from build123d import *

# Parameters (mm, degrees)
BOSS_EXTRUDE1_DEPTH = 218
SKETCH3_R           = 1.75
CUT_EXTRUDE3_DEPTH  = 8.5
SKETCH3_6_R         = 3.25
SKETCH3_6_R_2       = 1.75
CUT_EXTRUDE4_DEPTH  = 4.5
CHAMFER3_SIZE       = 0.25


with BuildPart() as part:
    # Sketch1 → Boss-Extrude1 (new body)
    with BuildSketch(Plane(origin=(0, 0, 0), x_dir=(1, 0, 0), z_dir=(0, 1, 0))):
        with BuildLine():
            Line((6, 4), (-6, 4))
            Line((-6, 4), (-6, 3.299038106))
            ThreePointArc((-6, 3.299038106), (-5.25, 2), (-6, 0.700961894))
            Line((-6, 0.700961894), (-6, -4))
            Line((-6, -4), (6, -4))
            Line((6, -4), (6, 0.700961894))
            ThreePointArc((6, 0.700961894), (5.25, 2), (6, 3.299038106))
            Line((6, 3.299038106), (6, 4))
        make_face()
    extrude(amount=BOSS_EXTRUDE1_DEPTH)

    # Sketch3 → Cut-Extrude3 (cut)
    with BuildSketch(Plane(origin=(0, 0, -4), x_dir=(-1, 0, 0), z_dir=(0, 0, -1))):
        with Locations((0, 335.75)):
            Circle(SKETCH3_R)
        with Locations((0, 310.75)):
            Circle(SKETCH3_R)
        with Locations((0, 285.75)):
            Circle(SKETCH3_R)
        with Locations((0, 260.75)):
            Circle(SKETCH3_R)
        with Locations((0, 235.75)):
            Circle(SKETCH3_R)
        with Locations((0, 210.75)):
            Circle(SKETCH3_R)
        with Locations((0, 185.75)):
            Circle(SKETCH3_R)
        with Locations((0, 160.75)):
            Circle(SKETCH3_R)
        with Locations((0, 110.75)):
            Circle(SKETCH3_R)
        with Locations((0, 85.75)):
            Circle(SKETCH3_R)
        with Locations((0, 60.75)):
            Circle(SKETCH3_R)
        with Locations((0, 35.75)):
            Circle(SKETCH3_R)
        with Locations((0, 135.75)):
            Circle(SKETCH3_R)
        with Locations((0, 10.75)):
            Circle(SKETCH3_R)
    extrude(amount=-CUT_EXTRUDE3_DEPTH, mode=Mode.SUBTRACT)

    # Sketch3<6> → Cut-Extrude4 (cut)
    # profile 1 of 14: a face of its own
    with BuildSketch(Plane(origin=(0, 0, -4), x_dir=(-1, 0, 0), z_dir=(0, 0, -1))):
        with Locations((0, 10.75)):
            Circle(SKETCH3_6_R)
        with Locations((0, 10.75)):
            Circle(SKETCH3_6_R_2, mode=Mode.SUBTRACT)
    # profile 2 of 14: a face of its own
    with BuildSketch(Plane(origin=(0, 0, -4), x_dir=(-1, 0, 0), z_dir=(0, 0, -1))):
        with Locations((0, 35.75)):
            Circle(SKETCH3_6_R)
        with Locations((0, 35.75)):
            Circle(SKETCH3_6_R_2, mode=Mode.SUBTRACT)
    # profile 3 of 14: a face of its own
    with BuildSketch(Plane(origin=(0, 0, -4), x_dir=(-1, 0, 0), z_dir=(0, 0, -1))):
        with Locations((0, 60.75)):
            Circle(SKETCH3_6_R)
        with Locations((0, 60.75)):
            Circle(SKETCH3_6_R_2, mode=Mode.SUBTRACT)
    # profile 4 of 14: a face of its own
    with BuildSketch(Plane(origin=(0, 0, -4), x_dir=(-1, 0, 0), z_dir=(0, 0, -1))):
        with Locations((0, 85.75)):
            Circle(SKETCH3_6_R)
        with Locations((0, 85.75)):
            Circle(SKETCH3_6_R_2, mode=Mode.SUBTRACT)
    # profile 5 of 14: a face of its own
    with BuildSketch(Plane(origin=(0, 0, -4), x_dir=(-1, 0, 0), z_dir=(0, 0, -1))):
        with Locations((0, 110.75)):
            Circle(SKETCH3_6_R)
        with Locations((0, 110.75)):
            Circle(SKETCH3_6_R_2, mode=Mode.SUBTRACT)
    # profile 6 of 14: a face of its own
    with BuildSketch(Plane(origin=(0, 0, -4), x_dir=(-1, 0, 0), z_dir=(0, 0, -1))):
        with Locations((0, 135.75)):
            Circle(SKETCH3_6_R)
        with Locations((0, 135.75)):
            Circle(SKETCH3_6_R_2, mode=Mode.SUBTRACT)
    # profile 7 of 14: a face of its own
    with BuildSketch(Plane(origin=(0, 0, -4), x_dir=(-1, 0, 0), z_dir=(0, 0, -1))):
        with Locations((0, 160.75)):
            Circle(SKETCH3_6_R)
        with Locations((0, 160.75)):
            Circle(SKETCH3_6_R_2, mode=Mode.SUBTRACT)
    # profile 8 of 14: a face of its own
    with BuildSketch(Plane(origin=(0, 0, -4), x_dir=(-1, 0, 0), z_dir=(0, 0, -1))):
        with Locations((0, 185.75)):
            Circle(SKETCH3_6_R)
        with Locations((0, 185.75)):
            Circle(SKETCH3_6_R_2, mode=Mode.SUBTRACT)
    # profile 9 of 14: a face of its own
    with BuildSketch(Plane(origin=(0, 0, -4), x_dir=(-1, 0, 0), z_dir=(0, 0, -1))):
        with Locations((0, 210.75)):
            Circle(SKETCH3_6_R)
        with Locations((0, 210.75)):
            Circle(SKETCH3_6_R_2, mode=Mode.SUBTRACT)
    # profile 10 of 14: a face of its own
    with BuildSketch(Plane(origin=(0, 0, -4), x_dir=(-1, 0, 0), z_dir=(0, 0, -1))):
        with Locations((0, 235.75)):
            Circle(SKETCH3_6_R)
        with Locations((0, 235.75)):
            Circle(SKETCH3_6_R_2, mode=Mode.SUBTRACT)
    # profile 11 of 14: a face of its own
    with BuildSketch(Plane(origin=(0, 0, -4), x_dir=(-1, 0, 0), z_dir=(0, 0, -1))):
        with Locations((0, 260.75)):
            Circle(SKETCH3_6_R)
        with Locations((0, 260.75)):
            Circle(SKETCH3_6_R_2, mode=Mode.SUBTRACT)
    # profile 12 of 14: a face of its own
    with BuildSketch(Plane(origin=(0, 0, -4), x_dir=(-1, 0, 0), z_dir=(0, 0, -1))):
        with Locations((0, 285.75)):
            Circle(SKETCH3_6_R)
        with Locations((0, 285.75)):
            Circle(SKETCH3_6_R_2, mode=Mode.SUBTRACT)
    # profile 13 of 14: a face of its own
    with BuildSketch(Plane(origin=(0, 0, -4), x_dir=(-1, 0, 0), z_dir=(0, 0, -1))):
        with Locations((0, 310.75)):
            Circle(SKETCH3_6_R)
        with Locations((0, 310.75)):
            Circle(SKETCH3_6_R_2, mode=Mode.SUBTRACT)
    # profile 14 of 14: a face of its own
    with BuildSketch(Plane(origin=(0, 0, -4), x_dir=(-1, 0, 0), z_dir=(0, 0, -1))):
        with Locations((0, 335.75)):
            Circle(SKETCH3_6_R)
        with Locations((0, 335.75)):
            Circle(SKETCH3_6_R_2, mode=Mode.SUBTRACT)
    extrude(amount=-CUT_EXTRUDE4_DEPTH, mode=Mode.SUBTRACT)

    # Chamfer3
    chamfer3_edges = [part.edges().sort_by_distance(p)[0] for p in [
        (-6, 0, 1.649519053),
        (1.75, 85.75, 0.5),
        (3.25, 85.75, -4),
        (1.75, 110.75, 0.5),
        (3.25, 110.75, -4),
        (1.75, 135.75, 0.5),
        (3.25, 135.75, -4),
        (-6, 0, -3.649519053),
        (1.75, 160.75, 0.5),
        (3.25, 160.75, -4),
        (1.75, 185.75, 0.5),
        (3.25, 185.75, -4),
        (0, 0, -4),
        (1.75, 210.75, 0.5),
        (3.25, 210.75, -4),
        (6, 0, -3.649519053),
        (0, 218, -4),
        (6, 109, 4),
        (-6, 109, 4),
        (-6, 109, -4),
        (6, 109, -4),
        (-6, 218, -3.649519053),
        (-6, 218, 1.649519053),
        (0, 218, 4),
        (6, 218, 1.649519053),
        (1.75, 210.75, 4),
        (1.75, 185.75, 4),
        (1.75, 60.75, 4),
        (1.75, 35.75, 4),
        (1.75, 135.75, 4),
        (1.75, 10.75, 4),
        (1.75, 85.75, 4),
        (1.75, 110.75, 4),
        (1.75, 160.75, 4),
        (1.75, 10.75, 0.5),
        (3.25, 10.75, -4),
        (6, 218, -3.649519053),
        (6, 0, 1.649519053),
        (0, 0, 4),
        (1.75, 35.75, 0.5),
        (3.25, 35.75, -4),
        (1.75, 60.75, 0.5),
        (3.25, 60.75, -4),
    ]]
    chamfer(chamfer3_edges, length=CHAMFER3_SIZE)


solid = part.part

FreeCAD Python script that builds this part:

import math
import FreeCAD as App
import Part
import Sketcher

V = App.Vector
Q = App.Units.Quantity


def edges_at(feature, points):
    """Names of the edges that pass closest to the given points."""
    edges = feature.Shape.Edges
    near = lambda p: min(range(len(edges)), key=lambda i: edges[i].distToShape(Part.Vertex(*p))[0])
    return sorted({f"Edge{near(p) + 1}" for p in points})

doc = App.newDocument("Part")
body = doc.addObject("PartDesign::Body", "Body")

sketch1 = body.newObject("Sketcher::SketchObject", "Sketch")
sketch1.AttachmentSupport = (doc.getObject("XZ_Plane"), [""])
sketch1.MapMode = "FlatFace"
sketch1.addGeometry(Part.LineSegment(V(6, -4, 0), V(-6, -4, 0)), False)
sketch1.addGeometry(Part.LineSegment(V(-6, -4, 0), V(-6, -3.3, 0)), False)
sketch1.addGeometry(Part.ArcOfCircle(Part.Circle(V(-6.8, -2, 0), V(0, 0, 1), 1.5), math.radians(-60), math.radians(60)), False)
sketch1.addGeometry(Part.LineSegment(V(-6, -0.7, 0), V(-6, 4, 0)), False)
sketch1.addGeometry(Part.LineSegment(V(-6, 4, 0), V(6, 4, 0)), False)
sketch1.addGeometry(Part.LineSegment(V(6, 4, 0), V(6, -0.7, 0)), False)
sketch1.addGeometry(Part.ArcOfCircle(Part.Circle(V(6.8, -2, 0), V(0, 0, 1), 1.5), math.radians(120), math.radians(240)), False)
sketch1.addGeometry(Part.LineSegment(V(6, -3.3, 0), V(6, -4, 0)), False)
sketch1.addConstraint(Sketcher.Constraint("Coincident", 0, 2, 1, 1))
sketch1.addConstraint(Sketcher.Constraint("Coincident", 1, 2, 2, 1))
sketch1.addConstraint(Sketcher.Constraint("Coincident", 2, 2, 3, 1))
sketch1.addConstraint(Sketcher.Constraint("Coincident", 3, 2, 4, 1))
sketch1.addConstraint(Sketcher.Constraint("Coincident", 4, 2, 5, 1))
sketch1.addConstraint(Sketcher.Constraint("Coincident", 5, 2, 6, 1))
sketch1.addConstraint(Sketcher.Constraint("Coincident", 6, 2, 7, 1))
sketch1.addConstraint(Sketcher.Constraint("Coincident", 7, 2, 0, 1))
sketch1.addConstraint(Sketcher.Constraint("Horizontal", 0))
sketch1.addConstraint(Sketcher.Constraint("Vertical", 1))
sketch1.addConstraint(Sketcher.Constraint("Vertical", 3))
sketch1.addConstraint(Sketcher.Constraint("Horizontal", 4))
sketch1.addConstraint(Sketcher.Constraint("Vertical", 5))
sketch1.addConstraint(Sketcher.Constraint("Vertical", 7))
sketch1.addConstraint(Sketcher.Constraint("Equal", 2, 6))
sketch1.addConstraint(Sketcher.Constraint("Symmetric", 0, 2, 4, 2, -1, 1))
sketch1.addConstraint(Sketcher.Constraint("Symmetric", 2, 3, 6, 3, -2))
sketch1.addConstraint(Sketcher.Constraint("Horizontal", 2, 2, 5, 2))
sketch1.addConstraint(Sketcher.Constraint("Horizontal", 1, 2, 6, 2))
sketch1.addConstraint(Sketcher.Constraint("Radius", 2, Q("1.5 mm")))
sketch1.addConstraint(Sketcher.Constraint("DistanceX", 0, 2, 0, 1, Q("12 mm")))
sketch1.addConstraint(Sketcher.Constraint("DistanceY", 2, 3, -1, 1, Q("2 mm")))
sketch1.addConstraint(Sketcher.Constraint("DistanceY", 0, 2, -1, 1, Q("4 mm")))
sketch1.addConstraint(Sketcher.Constraint("DistanceX", 2, 3, 6, 3, Q("13.5 mm")))
pad1 = body.newObject("PartDesign::Pad", "Pad")
pad1.Profile = sketch1
pad1.Length = 218
pad1.Reversed = True

sketch2 = body.newObject("Sketcher::SketchObject", "Sketch001")
sketch2.AttachmentSupport = (doc.getObject("XY_Plane"), [""])
sketch2.MapMode = "FlatFace"
sketch2.AttachmentOffset = App.Placement(V(0, 0, -4), App.Rotation())
sketch2.addGeometry(Part.Circle(V(0, 335.8, 0), V(0, 0, 1), 1.8), False)
sketch2.addGeometry(Part.Circle(V(0, 310.8, 0), V(0, 0, 1), 1.8), False)
sketch2.addGeometry(Part.Circle(V(0, 285.8, 0), V(0, 0, 1), 1.8), False)
sketch2.addGeometry(Part.Circle(V(0, 260.8, 0), V(0, 0, 1), 1.8), False)
sketch2.addGeometry(Part.Circle(V(0, 235.8, 0), V(0, 0, 1), 1.8), False)
sketch2.addGeometry(Part.Circle(V(0, 210.8, 0), V(0, 0, 1), 1.8), False)
sketch2.addGeometry(Part.Circle(V(0, 185.8, 0), V(0, 0, 1), 1.8), False)
sketch2.addGeometry(Part.Circle(V(0, 160.8, 0), V(0, 0, 1), 1.8), False)
sketch2.addGeometry(Part.Circle(V(0, 110.8, 0), V(0, 0, 1), 1.8), False)
sketch2.addGeometry(Part.Circle(V(0, 85.8, 0), V(0, 0, 1), 1.8), False)
sketch2.addGeometry(Part.Circle(V(0, 60.8, 0), V(0, 0, 1), 1.8), False)
sketch2.addGeometry(Part.Circle(V(0, 35.8, 0), V(0, 0, 1), 1.8), False)
sketch2.addGeometry(Part.Circle(V(0, 135.8, 0), V(0, 0, 1), 1.8), False)
sketch2.addGeometry(Part.Circle(V(0, 10.8, 0), V(0, 0, 1), 1.8), False)
sketch2.addConstraint(Sketcher.Constraint("Equal", 0, 1))
sketch2.addConstraint(Sketcher.Constraint("Equal", 1, 2))
sketch2.addConstraint(Sketcher.Constraint("Equal", 2, 3))
sketch2.addConstraint(Sketcher.Constraint("Equal", 3, 4))
sketch2.addConstraint(Sketcher.Constraint("Equal", 4, 5))
sketch2.addConstraint(Sketcher.Constraint("Equal", 5, 6))
sketch2.addConstraint(Sketcher.Constraint("Equal", 6, 7))
sketch2.addConstraint(Sketcher.Constraint("Equal", 7, 8))
sketch2.addConstraint(Sketcher.Constraint("Equal", 8, 9))
sketch2.addConstraint(Sketcher.Constraint("Equal", 9, 10))
sketch2.addConstraint(Sketcher.Constraint("Equal", 10, 11))
sketch2.addConstraint(Sketcher.Constraint("Equal", 11, 12))
sketch2.addConstraint(Sketcher.Constraint("Equal", 12, 13))
sketch2.addConstraint(Sketcher.Constraint("PointOnObject", 0, 3, -2))
sketch2.addConstraint(Sketcher.Constraint("PointOnObject", 1, 3, -2))
sketch2.addConstraint(Sketcher.Constraint("PointOnObject", 2, 3, -2))
sketch2.addConstraint(Sketcher.Constraint("PointOnObject", 3, 3, -2))
sketch2.addConstraint(Sketcher.Constraint("PointOnObject", 4, 3, -2))
sketch2.addConstraint(Sketcher.Constraint("PointOnObject", 5, 3, -2))
sketch2.addConstraint(Sketcher.Constraint("PointOnObject", 6, 3, -2))
sketch2.addConstraint(Sketcher.Constraint("PointOnObject", 7, 3, -2))
sketch2.addConstraint(Sketcher.Constraint("PointOnObject", 8, 3, -2))
sketch2.addConstraint(Sketcher.Constraint("PointOnObject", 9, 3, -2))
sketch2.addConstraint(Sketcher.Constraint("PointOnObject", 10, 3, -2))
sketch2.addConstraint(Sketcher.Constraint("PointOnObject", 11, 3, -2))
sketch2.addConstraint(Sketcher.Constraint("PointOnObject", 12, 3, -2))
sketch2.addConstraint(Sketcher.Constraint("PointOnObject", 13, 3, -2))
sketch2.addConstraint(Sketcher.Constraint("Diameter", 0, Q("3.5 mm")))
sketch2.addConstraint(Sketcher.Constraint("DistanceY", 1, 3, 0, 3, Q("25 mm")))
sketch2.addConstraint(Sketcher.Constraint("DistanceY", 2, 3, 1, 3, Q("25 mm")))
sketch2.addConstraint(Sketcher.Constraint("DistanceY", 3, 3, 2, 3, Q("25 mm")))
sketch2.addConstraint(Sketcher.Constraint("DistanceY", 4, 3, 3, 3, Q("25 mm")))
sketch2.addConstraint(Sketcher.Constraint("DistanceY", 5, 3, 4, 3, Q("25 mm")))
sketch2.addConstraint(Sketcher.Constraint("DistanceY", 6, 3, 5, 3, Q("25 mm")))
sketch2.addConstraint(Sketcher.Constraint("DistanceY", 7, 3, 6, 3, Q("25 mm")))
sketch2.addConstraint(Sketcher.Constraint("DistanceY", 8, 3, 7, 3, Q("50 mm")))
sketch2.addConstraint(Sketcher.Constraint("DistanceY", 9, 3, 8, 3, Q("25 mm")))
sketch2.addConstraint(Sketcher.Constraint("DistanceY", 10, 3, 9, 3, Q("25 mm")))
sketch2.addConstraint(Sketcher.Constraint("DistanceY", 11, 3, 10, 3, Q("25 mm")))
sketch2.addConstraint(Sketcher.Constraint("DistanceY", 12, 3, 7, 3, Q("25 mm")))
sketch2.addConstraint(Sketcher.Constraint("DistanceY", 13, 3, 11, 3, Q("25 mm")))
sketch2.addConstraint(Sketcher.Constraint("DistanceY", -1, 1, 0, 3, Q("335.75 mm")))
pocket1 = body.newObject("PartDesign::Pocket", "Pocket")
pocket1.Profile = sketch2
pocket1.Length = 8.5
pocket1.Reversed = True

sketch3 = body.newObject("Sketcher::SketchObject", "Sketch002")
sketch3.AttachmentSupport = (doc.getObject("XY_Plane"), [""])
sketch3.MapMode = "FlatFace"
sketch3.AttachmentOffset = App.Placement(V(0, 0, -4), App.Rotation())
sketch3.addGeometry(Part.Circle(V(0, 10.8, 0), V(0, 0, 1), 3.2), False)
sketch3.addGeometry(Part.Circle(V(0, 10.8, 0), V(0, 0, 1), 1.8), False)
sketch3.addGeometry(Part.Circle(V(0, 35.8, 0), V(0, 0, 1), 3.2), False)
sketch3.addGeometry(Part.Circle(V(0, 35.8, 0), V(0, 0, 1), 1.8), False)
sketch3.addGeometry(Part.Circle(V(0, 60.8, 0), V(0, 0, 1), 3.2), False)
sketch3.addGeometry(Part.Circle(V(0, 60.8, 0), V(0, 0, 1), 1.8), False)
sketch3.addGeometry(Part.Circle(V(0, 85.8, 0), V(0, 0, 1), 3.2), False)
sketch3.addGeometry(Part.Circle(V(0, 85.8, 0), V(0, 0, 1), 1.8), False)
sketch3.addGeometry(Part.Circle(V(0, 110.8, 0), V(0, 0, 1), 3.2), False)
sketch3.addGeometry(Part.Circle(V(0, 110.8, 0), V(0, 0, 1), 1.8), False)
sketch3.addGeometry(Part.Circle(V(0, 135.8, 0), V(0, 0, 1), 3.2), False)
sketch3.addGeometry(Part.Circle(V(0, 135.8, 0), V(0, 0, 1), 1.8), False)
sketch3.addGeometry(Part.Circle(V(0, 160.8, 0), V(0, 0, 1), 3.2), False)
sketch3.addGeometry(Part.Circle(V(0, 160.8, 0), V(0, 0, 1), 1.8), False)
sketch3.addGeometry(Part.Circle(V(0, 185.8, 0), V(0, 0, 1), 3.2), False)
sketch3.addGeometry(Part.Circle(V(0, 185.8, 0), V(0, 0, 1), 1.8), False)
sketch3.addGeometry(Part.Circle(V(0, 210.8, 0), V(0, 0, 1), 3.2), False)
sketch3.addGeometry(Part.Circle(V(0, 210.8, 0), V(0, 0, 1), 1.8), False)
sketch3.addGeometry(Part.Circle(V(0, 235.8, 0), V(0, 0, 1), 3.2), False)
sketch3.addGeometry(Part.Circle(V(0, 235.8, 0), V(0, 0, 1), 1.8), False)
sketch3.addGeometry(Part.Circle(V(0, 260.8, 0), V(0, 0, 1), 3.2), False)
sketch3.addGeometry(Part.Circle(V(0, 260.8, 0), V(0, 0, 1), 1.8), False)
sketch3.addGeometry(Part.Circle(V(0, 285.8, 0), V(0, 0, 1), 3.2), False)
sketch3.addGeometry(Part.Circle(V(0, 285.8, 0), V(0, 0, 1), 1.8), False)
sketch3.addGeometry(Part.Circle(V(0, 310.8, 0), V(0, 0, 1), 3.2), False)
sketch3.addGeometry(Part.Circle(V(0, 310.8, 0), V(0, 0, 1), 1.8), False)
sketch3.addGeometry(Part.Circle(V(0, 335.8, 0), V(0, 0, 1), 3.2), False)
sketch3.addGeometry(Part.Circle(V(0, 335.8, 0), V(0, 0, 1), 1.8), False)
sketch3.addConstraint(Sketcher.Constraint("Coincident", 1, 3, 0, 3))
sketch3.addConstraint(Sketcher.Constraint("Coincident", 3, 3, 2, 3))
sketch3.addConstraint(Sketcher.Constraint("Coincident", 5, 3, 4, 3))
sketch3.addConstraint(Sketcher.Constraint("Coincident", 7, 3, 6, 3))
sketch3.addConstraint(Sketcher.Constraint("Coincident", 9, 3, 8, 3))
sketch3.addConstraint(Sketcher.Constraint("Coincident", 11, 3, 10, 3))
sketch3.addConstraint(Sketcher.Constraint("Coincident", 13, 3, 12, 3))
sketch3.addConstraint(Sketcher.Constraint("Coincident", 15, 3, 14, 3))
sketch3.addConstraint(Sketcher.Constraint("Coincident", 17, 3, 16, 3))
sketch3.addConstraint(Sketcher.Constraint("Coincident", 19, 3, 18, 3))
sketch3.addConstraint(Sketcher.Constraint("Coincident", 21, 3, 20, 3))
sketch3.addConstraint(Sketcher.Constraint("Coincident", 23, 3, 22, 3))
sketch3.addConstraint(Sketcher.Constraint("Coincident", 25, 3, 24, 3))
sketch3.addConstraint(Sketcher.Constraint("Coincident", 27, 3, 26, 3))
sketch3.addConstraint(Sketcher.Constraint("Equal", 0, 2))
sketch3.addConstraint(Sketcher.Constraint("Equal", 1, 3))
sketch3.addConstraint(Sketcher.Constraint("Equal", 2, 4))
sketch3.addConstraint(Sketcher.Constraint("Equal", 3, 5))
sketch3.addConstraint(Sketcher.Constraint("Equal", 4, 6))
sketch3.addConstraint(Sketcher.Constraint("Equal", 5, 7))
sketch3.addConstraint(Sketcher.Constraint("Equal", 6, 8))
sketch3.addConstraint(Sketcher.Constraint("Equal", 7, 9))
sketch3.addConstraint(Sketcher.Constraint("Equal", 8, 10))
sketch3.addConstraint(Sketcher.Constraint("Equal", 9, 11))
sketch3.addConstraint(Sketcher.Constraint("Equal", 10, 12))
sketch3.addConstraint(Sketcher.Constraint("Equal", 11, 13))
sketch3.addConstraint(Sketcher.Constraint("Equal", 12, 14))
sketch3.addConstraint(Sketcher.Constraint("Equal", 13, 15))
sketch3.addConstraint(Sketcher.Constraint("Equal", 14, 16))
sketch3.addConstraint(Sketcher.Constraint("Equal", 15, 17))
sketch3.addConstraint(Sketcher.Constraint("Equal", 16, 18))
sketch3.addConstraint(Sketcher.Constraint("Equal", 17, 19))
sketch3.addConstraint(Sketcher.Constraint("Equal", 18, 20))
sketch3.addConstraint(Sketcher.Constraint("Equal", 19, 21))
sketch3.addConstraint(Sketcher.Constraint("Equal", 20, 22))
sketch3.addConstraint(Sketcher.Constraint("Equal", 21, 23))
sketch3.addConstraint(Sketcher.Constraint("Equal", 22, 24))
sketch3.addConstraint(Sketcher.Constraint("Equal", 23, 25))
sketch3.addConstraint(Sketcher.Constraint("Equal", 24, 26))
sketch3.addConstraint(Sketcher.Constraint("Equal", 25, 27))
sketch3.addConstraint(Sketcher.Constraint("PointOnObject", 0, 3, -2))
sketch3.addConstraint(Sketcher.Constraint("PointOnObject", 2, 3, -2))
sketch3.addConstraint(Sketcher.Constraint("PointOnObject", 4, 3, -2))
sketch3.addConstraint(Sketcher.Constraint("PointOnObject", 6, 3, -2))
sketch3.addConstraint(Sketcher.Constraint("PointOnObject", 8, 3, -2))
sketch3.addConstraint(Sketcher.Constraint("PointOnObject", 10, 3, -2))
sketch3.addConstraint(Sketcher.Constraint("PointOnObject", 12, 3, -2))
sketch3.addConstraint(Sketcher.Constraint("PointOnObject", 14, 3, -2))
sketch3.addConstraint(Sketcher.Constraint("PointOnObject", 16, 3, -2))
sketch3.addConstraint(Sketcher.Constraint("PointOnObject", 18, 3, -2))
sketch3.addConstraint(Sketcher.Constraint("PointOnObject", 20, 3, -2))
sketch3.addConstraint(Sketcher.Constraint("PointOnObject", 22, 3, -2))
sketch3.addConstraint(Sketcher.Constraint("PointOnObject", 24, 3, -2))
sketch3.addConstraint(Sketcher.Constraint("PointOnObject", 26, 3, -2))
sketch3.addConstraint(Sketcher.Constraint("Diameter", 0, Q("6.5 mm")))
sketch3.addConstraint(Sketcher.Constraint("Diameter", 1, Q("3.5 mm")))
sketch3.addConstraint(Sketcher.Constraint("DistanceY", 0, 3, 2, 3, Q("25 mm")))
sketch3.addConstraint(Sketcher.Constraint("DistanceY", 2, 3, 4, 3, Q("25 mm")))
sketch3.addConstraint(Sketcher.Constraint("DistanceY", 4, 3, 6, 3, Q("25 mm")))
sketch3.addConstraint(Sketcher.Constraint("DistanceY", 6, 3, 8, 3, Q("25 mm")))
sketch3.addConstraint(Sketcher.Constraint("DistanceY", 8, 3, 10, 3, Q("25 mm")))
sketch3.addConstraint(Sketcher.Constraint("DistanceY", 10, 3, 12, 3, Q("25 mm")))
sketch3.addConstraint(Sketcher.Constraint("DistanceY", 12, 3, 14, 3, Q("25 mm")))
sketch3.addConstraint(Sketcher.Constraint("DistanceY", 14, 3, 16, 3, Q("25 mm")))
sketch3.addConstraint(Sketcher.Constraint("DistanceY", 16, 3, 18, 3, Q("25 mm")))
sketch3.addConstraint(Sketcher.Constraint("DistanceY", 18, 3, 20, 3, Q("25 mm")))
sketch3.addConstraint(Sketcher.Constraint("DistanceY", 20, 3, 22, 3, Q("25 mm")))
sketch3.addConstraint(Sketcher.Constraint("DistanceY", 22, 3, 24, 3, Q("25 mm")))
sketch3.addConstraint(Sketcher.Constraint("DistanceY", 24, 3, 26, 3, Q("25 mm")))
sketch3.addConstraint(Sketcher.Constraint("DistanceY", -1, 1, 0, 3, Q("10.75 mm")))
pocket2 = body.newObject("PartDesign::Pocket", "Pocket001")
pocket2.Profile = sketch3
pocket2.Length = 4.5
pocket2.Reversed = True
doc.recompute()

chamfer = body.newObject("PartDesign::Chamfer", "Chamfer")
chamfer.Base = (pocket2, edges_at(pocket2, [
    (-6, 0, 1.65),
    (1.75, 85.75, 0.5),
    (3.25, 85.75, -4),
    (1.75, 110.75, 0.5),
    (3.25, 110.75, -4),
    (1.75, 135.75, 0.5),
    (3.25, 135.75, -4),
    (-6, 0, -3.65),
    (1.75, 160.75, 0.5),
    (3.25, 160.75, -4),
    (1.75, 185.75, 0.5),
    (3.25, 185.75, -4),
    (0, 0, -4),
    (1.75, 210.75, 0.5),
    (3.25, 210.75, -4),
    (6, 0, -3.65),
    (0, 218, -4),
    (6, 109, 4),
    (-6, 109, 4),
    (-6, 109, -4),
    (6, 109, -4),
    (-6, 218, -3.65),
    (-6, 218, 1.65),
    (0, 218, 4),
    (6, 218, 1.65),
    (1.75, 210.75, 4),
    (1.75, 185.75, 4),
    (1.75, 60.75, 4),
    (1.75, 35.75, 4),
    (1.75, 135.75, 4),
    (1.75, 10.75, 4),
    (1.75, 85.75, 4),
    (1.75, 110.75, 4),
    (1.75, 160.75, 4),
    (1.75, 10.75, 0.5),
    (3.25, 10.75, -4),
    (6, 218, -3.65),
    (6, 0, 1.65),
    (0, 0, 4),
    (1.75, 35.75, 0.5),
    (3.25, 35.75, -4),
    (1.75, 60.75, 0.5),
    (3.25, 60.75, -4),
]))
chamfer.Size = 0.25

doc.recompute()
